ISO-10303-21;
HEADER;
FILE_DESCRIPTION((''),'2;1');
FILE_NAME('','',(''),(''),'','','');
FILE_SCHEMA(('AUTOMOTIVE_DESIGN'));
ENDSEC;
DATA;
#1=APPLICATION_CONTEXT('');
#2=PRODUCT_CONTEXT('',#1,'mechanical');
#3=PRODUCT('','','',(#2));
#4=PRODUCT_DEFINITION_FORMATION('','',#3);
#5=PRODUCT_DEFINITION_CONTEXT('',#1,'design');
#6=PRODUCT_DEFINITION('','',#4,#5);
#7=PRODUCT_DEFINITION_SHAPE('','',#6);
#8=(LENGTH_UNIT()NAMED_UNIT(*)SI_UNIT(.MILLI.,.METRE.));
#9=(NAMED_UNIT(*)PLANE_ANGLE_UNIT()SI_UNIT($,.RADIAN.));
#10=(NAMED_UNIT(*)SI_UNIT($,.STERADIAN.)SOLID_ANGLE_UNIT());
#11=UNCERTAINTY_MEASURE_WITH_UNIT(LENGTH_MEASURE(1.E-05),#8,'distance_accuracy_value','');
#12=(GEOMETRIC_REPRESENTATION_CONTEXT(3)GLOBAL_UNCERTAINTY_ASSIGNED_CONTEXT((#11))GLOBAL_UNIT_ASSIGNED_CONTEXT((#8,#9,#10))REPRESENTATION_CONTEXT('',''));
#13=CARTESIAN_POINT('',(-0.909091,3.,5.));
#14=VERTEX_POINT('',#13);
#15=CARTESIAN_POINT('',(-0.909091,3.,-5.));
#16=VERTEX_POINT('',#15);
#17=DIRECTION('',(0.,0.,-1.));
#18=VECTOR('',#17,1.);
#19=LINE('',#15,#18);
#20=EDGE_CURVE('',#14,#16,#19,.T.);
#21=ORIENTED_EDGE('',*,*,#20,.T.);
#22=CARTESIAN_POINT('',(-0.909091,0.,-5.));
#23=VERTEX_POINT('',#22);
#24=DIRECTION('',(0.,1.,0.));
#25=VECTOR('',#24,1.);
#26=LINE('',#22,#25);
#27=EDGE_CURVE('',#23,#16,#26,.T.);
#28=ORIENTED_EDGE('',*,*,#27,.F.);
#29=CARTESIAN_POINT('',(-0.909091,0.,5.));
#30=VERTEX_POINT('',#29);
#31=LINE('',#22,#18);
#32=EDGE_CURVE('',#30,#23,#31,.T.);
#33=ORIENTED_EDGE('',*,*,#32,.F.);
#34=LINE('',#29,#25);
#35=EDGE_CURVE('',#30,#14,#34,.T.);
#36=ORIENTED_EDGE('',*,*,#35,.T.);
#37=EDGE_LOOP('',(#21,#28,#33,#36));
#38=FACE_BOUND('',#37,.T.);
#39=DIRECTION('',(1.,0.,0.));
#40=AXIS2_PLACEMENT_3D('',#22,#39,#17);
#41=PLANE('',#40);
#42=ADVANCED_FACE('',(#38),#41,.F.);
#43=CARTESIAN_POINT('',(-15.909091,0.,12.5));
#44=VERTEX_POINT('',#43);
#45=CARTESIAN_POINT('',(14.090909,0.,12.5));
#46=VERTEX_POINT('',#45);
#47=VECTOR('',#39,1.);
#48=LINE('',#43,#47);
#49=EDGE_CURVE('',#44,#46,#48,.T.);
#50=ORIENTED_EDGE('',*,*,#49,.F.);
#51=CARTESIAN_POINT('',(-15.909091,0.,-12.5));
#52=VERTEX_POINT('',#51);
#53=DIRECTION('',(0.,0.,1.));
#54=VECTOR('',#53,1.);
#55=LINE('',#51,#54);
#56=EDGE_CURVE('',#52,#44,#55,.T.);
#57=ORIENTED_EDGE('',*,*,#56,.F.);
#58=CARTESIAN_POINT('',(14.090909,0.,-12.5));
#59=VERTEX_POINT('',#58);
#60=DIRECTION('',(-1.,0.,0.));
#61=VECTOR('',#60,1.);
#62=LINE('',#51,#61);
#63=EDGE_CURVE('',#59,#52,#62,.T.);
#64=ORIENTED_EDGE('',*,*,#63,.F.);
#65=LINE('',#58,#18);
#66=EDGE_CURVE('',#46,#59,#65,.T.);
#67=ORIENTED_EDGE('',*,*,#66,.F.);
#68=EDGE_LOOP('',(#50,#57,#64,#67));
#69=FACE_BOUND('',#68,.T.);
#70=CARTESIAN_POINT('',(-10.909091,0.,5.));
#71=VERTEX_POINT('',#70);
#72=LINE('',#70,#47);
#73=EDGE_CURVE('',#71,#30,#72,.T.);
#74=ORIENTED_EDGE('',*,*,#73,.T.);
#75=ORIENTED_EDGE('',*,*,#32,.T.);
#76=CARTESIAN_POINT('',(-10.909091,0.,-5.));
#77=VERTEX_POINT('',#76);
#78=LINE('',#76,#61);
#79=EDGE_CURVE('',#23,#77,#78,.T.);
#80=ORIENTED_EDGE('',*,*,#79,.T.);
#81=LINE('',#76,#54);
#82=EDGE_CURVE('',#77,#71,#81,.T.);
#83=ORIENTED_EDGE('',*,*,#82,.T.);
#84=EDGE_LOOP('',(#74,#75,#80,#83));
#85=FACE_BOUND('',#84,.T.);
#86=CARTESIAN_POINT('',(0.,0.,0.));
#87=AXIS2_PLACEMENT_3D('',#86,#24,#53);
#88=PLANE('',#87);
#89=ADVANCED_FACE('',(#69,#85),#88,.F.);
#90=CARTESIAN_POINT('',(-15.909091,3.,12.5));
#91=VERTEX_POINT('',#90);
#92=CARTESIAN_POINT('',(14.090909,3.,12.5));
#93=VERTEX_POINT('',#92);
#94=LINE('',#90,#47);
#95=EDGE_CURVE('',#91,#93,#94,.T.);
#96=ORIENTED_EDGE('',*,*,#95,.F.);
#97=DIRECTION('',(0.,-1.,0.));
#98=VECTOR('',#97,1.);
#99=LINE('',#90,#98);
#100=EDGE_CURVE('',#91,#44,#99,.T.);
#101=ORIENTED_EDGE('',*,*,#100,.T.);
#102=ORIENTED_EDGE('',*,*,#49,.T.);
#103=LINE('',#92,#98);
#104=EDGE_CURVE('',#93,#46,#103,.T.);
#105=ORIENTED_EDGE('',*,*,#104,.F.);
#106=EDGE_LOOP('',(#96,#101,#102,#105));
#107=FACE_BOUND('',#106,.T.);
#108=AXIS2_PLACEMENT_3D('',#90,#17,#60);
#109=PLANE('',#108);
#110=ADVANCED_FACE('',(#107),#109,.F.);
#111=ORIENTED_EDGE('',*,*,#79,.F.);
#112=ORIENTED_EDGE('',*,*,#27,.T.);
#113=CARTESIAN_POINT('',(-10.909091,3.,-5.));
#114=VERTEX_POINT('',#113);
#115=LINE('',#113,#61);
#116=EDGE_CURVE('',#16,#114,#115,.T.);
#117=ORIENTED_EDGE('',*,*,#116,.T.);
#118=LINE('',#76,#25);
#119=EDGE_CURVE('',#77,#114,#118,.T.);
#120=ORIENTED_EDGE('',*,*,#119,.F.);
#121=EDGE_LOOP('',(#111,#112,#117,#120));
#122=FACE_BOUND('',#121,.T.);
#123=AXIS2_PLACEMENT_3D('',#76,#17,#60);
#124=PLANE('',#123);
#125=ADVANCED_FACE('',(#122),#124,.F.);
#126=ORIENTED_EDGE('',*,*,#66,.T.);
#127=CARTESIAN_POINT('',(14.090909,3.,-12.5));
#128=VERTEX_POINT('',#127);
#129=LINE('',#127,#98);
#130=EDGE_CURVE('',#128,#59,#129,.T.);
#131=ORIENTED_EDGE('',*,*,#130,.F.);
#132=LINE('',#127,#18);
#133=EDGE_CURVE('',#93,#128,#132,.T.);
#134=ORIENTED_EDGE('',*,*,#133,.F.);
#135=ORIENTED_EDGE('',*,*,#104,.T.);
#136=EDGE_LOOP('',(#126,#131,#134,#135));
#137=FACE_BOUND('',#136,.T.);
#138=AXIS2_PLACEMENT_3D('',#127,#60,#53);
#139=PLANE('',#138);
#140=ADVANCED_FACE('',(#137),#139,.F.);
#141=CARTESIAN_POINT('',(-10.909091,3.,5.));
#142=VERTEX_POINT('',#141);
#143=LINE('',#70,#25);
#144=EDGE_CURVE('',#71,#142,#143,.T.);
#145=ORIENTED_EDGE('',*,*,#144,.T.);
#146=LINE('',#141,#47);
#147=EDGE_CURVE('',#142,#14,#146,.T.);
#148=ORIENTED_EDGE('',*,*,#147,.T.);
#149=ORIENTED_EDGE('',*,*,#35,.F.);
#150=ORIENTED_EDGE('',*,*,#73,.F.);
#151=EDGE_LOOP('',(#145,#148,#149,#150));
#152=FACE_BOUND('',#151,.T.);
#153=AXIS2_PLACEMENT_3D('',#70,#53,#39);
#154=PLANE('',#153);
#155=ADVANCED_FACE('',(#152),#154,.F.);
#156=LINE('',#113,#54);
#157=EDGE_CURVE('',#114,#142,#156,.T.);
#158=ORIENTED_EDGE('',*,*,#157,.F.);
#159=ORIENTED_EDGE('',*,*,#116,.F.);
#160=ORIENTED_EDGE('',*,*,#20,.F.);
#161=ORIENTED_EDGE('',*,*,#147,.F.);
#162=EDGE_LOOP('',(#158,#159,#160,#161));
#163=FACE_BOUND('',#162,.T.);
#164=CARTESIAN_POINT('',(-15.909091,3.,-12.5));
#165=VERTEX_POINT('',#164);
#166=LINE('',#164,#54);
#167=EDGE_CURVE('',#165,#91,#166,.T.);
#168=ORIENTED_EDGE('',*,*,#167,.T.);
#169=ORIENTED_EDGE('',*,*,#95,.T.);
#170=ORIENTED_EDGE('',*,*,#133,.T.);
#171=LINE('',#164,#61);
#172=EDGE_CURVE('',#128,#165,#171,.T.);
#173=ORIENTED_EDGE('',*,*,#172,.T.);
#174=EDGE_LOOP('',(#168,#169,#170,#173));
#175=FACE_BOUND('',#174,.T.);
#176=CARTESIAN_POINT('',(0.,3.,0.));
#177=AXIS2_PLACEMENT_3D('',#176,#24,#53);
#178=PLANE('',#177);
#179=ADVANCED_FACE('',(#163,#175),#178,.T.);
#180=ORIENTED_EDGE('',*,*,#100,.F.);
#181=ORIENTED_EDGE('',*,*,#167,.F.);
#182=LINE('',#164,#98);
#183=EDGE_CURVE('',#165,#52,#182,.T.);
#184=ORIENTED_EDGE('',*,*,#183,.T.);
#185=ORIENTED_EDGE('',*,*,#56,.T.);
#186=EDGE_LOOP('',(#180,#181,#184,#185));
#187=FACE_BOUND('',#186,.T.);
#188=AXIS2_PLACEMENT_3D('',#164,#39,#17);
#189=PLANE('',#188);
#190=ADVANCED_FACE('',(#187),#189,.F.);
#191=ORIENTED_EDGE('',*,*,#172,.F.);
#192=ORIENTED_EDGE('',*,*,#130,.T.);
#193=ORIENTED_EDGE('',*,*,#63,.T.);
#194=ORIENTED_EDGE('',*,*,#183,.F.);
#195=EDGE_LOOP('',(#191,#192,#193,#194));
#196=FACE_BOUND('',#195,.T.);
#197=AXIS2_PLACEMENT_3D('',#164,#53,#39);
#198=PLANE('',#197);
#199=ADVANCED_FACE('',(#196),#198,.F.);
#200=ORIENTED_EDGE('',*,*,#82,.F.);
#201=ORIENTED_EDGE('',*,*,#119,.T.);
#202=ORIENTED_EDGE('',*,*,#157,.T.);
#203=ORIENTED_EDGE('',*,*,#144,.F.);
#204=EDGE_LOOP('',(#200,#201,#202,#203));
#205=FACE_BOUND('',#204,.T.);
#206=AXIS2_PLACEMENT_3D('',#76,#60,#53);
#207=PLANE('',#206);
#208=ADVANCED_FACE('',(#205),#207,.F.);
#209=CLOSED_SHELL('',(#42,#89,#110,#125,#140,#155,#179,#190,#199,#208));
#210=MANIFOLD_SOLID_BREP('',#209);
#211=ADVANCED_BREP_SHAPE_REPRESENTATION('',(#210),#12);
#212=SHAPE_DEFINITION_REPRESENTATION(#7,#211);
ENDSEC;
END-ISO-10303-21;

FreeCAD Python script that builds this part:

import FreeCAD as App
import Part
import Sketcher

doc = App.newDocument("Part")
body = doc.addObject("PartDesign::Body", "Body")

# Sketch on XZ plane
sketch1 = body.newObject("Sketcher::SketchObject", "Sketch")
sketch1.AttachmentSupport = (doc.getObject("XZ_Plane"), [""])
sketch1.MapMode = "FlatFace"
sketch1.addGeometry(Part.LineSegment(App.Vector(-16, -12, 0), App.Vector(-16, 12, 0)), False)
sketch1.addGeometry(Part.LineSegment(App.Vector(-16, 12, 0), App.Vector(14, 12, 0)), False)
sketch1.addGeometry(Part.LineSegment(App.Vector(14, 12, 0), App.Vector(14, -12, 0)), False)
sketch1.addGeometry(Part.LineSegment(App.Vector(14, -12, 0), App.Vector(-16, -12, 0)), False)
sketch1.addConstraint(Sketcher.Constraint("Coincident", 0, 2, 1, 1))
sketch1.addConstraint(Sketcher.Constraint("Coincident", 1, 2, 2, 1))
sketch1.addConstraint(Sketcher.Constraint("Coincident", 2, 2, 3, 1))
sketch1.addConstraint(Sketcher.Constraint("Coincident", 3, 2, 0, 1))
sketch1.addConstraint(Sketcher.Constraint("Vertical", 0))
sketch1.addConstraint(Sketcher.Constraint("Horizontal", 1))
sketch1.addConstraint(Sketcher.Constraint("Vertical", 2))
sketch1.addConstraint(Sketcher.Constraint("Horizontal", 3))
sketch1.addConstraint(Sketcher.Constraint("DistanceX", 1, 1, 1, 2, 30.0))
sketch1.addConstraint(Sketcher.Constraint("DistanceY", 0, 1, 0, 2, 25.0))
sketch1.addConstraint(Sketcher.Constraint("DistanceY", -1, 1, 0, 2, 12.5))
sketch1.addConstraint(Sketcher.Constraint("DistanceX", 0, 2, -1, 1, 15.909091))
pad1 = body.newObject("PartDesign::Pad", "Pad")
pad1.Profile = sketch1
pad1.Length = 3
pad1.Reversed = True

# Sketch on XZ plane
sketch2 = body.newObject("Sketcher::SketchObject", "Sketch001")
sketch2.AttachmentSupport = (doc.getObject("XZ_Plane"), [""])
sketch2.MapMode = "FlatFace"
sketch2.AttachmentOffset = App.Placement(App.Vector(0, 0, -3), App.Rotation())
sketch2.addGeometry(Part.LineSegment(App.Vector(-11, -5, 0), App.Vector(-11, 5, 0)), False)
sketch2.addGeometry(Part.LineSegment(App.Vector(-11, 5, 0), App.Vector(-1, 5, 0)), False)
sketch2.addGeometry(Part.LineSegment(App.Vector(-1, 5, 0), App.Vector(-1, -5, 0)), False)
sketch2.addGeometry(Part.LineSegment(App.Vector(-1, -5, 0), App.Vector(-11, -5, 0)), False)
sketch2.addConstraint(Sketcher.Constraint("Coincident", 0, 2, 1, 1))
sketch2.addConstraint(Sketcher.Constraint("Coincident", 1, 2, 2, 1))
sketch2.addConstraint(Sketcher.Constraint("Coincident", 2, 2, 3, 1))
sketch2.addConstraint(Sketcher.Constraint("Coincident", 3, 2, 0, 1))
sketch2.addConstraint(Sketcher.Constraint("Vertical", 0))
sketch2.addConstraint(Sketcher.Constraint("Horizontal", 1))
sketch2.addConstraint(Sketcher.Constraint("Vertical", 2))
sketch2.addConstraint(Sketcher.Constraint("Horizontal", 3))
sketch2.addConstraint(Sketcher.Constraint("Equal", 3, 0))
sketch2.addConstraint(Sketcher.Constraint("DistanceX", 1, 1, 1, 2, 10.0))
sketch2.addConstraint(Sketcher.Constraint("DistanceY", -1, 1, 0, 2, 5.0))
sketch2.addConstraint(Sketcher.Constraint("DistanceX", 0, 2, -1, 1, 10.909091))
pocket1 = body.newObject("PartDesign::Pocket", "Pocket")
pocket1.Profile = sketch2
pocket1.Type = "ThroughAll"
pocket1.Reversed = True

doc.recompute()
